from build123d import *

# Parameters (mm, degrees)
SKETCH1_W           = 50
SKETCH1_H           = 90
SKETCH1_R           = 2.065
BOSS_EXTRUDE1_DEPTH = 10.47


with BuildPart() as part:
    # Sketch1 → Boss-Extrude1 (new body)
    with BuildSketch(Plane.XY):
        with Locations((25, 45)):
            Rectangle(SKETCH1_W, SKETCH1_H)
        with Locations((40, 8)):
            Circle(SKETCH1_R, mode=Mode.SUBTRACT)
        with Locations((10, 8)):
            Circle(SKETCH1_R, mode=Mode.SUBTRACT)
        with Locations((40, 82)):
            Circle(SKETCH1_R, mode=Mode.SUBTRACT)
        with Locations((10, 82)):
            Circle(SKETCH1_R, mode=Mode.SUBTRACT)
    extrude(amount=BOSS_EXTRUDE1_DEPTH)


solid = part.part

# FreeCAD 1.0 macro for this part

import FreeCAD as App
import Part
import Sketcher
from FreeCAD import Vector


def add_polygon(sketch, points):
    """Adds a closed chain of lines whose ends are joined by coincident constraints."""
    first, n = sketch.GeometryCount, len(points)
    for a, b in zip(points, points[1:] + points[:1]):
        sketch.addGeometry(Part.LineSegment(App.Vector(*a, 0), App.Vector(*b, 0)), False)
    for i in range(n):
        sketch.addConstraint(Sketcher.Constraint("Coincident", first + i, 2, first + (i + 1) % n, 1))

doc = App.newDocument("Part")
body = doc.addObject("PartDesign::Body", "Body")

# Sketch on XY plane
sketch1 = body.newObject("Sketcher::SketchObject", "Sketch")
sketch1.AttachmentSupport = (doc.getObject("XY_Plane"), [""])
sketch1.MapMode = "FlatFace"
add_polygon(sketch1, [(0, 90), (0, 0), (50, 0), (50, 90)])  # lines 0-3
sketch1.addGeometry(Part.Circle(Vector(10, 8, 0), Vector(0, 0, 1), 2.1), False)  # 4
sketch1.addGeometry(Part.Circle(Vector(40, 8, 0), Vector(0, 0, 1), 2.1), False)  # 5
sketch1.addGeometry(Part.Circle(Vector(10, 82, 0), Vector(0, 0, 1), 2.1), False)  # 6
sketch1.addGeometry(Part.Circle(Vector(40, 82, 0), Vector(0, 0, 1), 2.1), False)  # 7
sketch1.addConstraint([
    Sketcher.Constraint("Vertical", 0),
    Sketcher.Constraint("Horizontal", 1),
    Sketcher.Constraint("Vertical", 2),
    Sketcher.Constraint("Horizontal", 3),
    Sketcher.Constraint("Coincident", 0, 2, -1, 1),
    Sketcher.Constraint("Equal", 4, 5),
    Sketcher.Constraint("Equal", 5, 6),
    Sketcher.Constraint("Equal", 6, 7),
    Sketcher.Constraint("Horizontal", 4, 3, 5, 3),
    Sketcher.Constraint("Horizontal", 6, 3, 7, 3),
    Sketcher.Constraint("Vertical", 4, 3, 6, 3),
    Sketcher.Constraint("Vertical", 5, 3, 7, 3),
    Sketcher.Constraint("Diameter", 4, 4.13),
    Sketcher.Constraint("DistanceX", 1, 1, 1, 2, 50.0),
    Sketcher.Constraint("DistanceY", 0, 2, 0, 1, 90.0),
    Sketcher.Constraint("DistanceX", -1, 1, 4, 3, 10.0),
    Sketcher.Constraint("DistanceY", -1, 1, 4, 3, 8.0),
    Sketcher.Constraint("DistanceX", -1, 1, 5, 3, 40.0),
    Sketcher.Constraint("DistanceY", -1, 1, 6, 3, 82.0),
])
pad1 = body.newObject("PartDesign::Pad", "Pad")
pad1.Profile = sketch1
pad1.Length = 10.47

doc.recompute()
